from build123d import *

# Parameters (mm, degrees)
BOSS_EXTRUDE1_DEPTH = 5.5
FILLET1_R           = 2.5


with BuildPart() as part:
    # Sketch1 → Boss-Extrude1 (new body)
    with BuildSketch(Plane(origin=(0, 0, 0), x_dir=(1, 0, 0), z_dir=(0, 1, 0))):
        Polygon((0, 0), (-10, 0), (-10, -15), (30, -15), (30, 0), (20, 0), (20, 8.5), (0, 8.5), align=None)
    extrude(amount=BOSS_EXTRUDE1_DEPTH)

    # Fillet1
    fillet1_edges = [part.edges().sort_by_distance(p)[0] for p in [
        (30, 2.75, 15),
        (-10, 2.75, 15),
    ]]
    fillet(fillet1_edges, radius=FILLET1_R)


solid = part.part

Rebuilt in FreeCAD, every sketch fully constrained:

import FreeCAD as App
import Part
import Sketcher

V = App.Vector


def edges_at(feature, points):
    """Names of the edges that pass closest to the given points."""
    edges = feature.Shape.Edges
    near = lambda p: min(range(len(edges)), key=lambda i: edges[i].distToShape(Part.Vertex(*p))[0])
    return sorted({f"Edge{near(p) + 1}" for p in points})

doc = App.newDocument("Part")
body = doc.addObject("PartDesign::Body", "Body")

sketch1 = doc.addObject("Sketcher::SketchObject", "Sketch")
body.addObject(sketch1)
sketch1.AttachmentSupport = (doc.XZ_Plane, [""])
sketch1.MapMode = "FlatFace"
sketch1.addGeometry(Part.LineSegment(V(0, 0, 0), V(-10, 0, 0)), False)
sketch1.addGeometry(Part.LineSegment(V(-10, 0, 0), V(-10, 15, 0)), False)
sketch1.addGeometry(Part.LineSegment(V(-10, 15, 0), V(30, 15, 0)), False)
sketch1.addGeometry(Part.LineSegment(V(30, 15, 0), V(30, 0, 0)), False)
sketch1.addGeometry(Part.LineSegment(V(30, 0, 0), V(20, 0, 0)), False)
sketch1.addGeometry(Part.LineSegment(V(20, 0, 0), V(20, -8, 0)), False)
sketch1.addGeometry(Part.LineSegment(V(20, -8, 0), V(0, -8, 0)), False)
sketch1.addGeometry(Part.LineSegment(V(0, -8, 0), V(0, 0, 0)), False)
sketch1.addConstraint(Sketcher.Constraint("Coincident", 0, 2, 1, 1))
sketch1.addConstraint(Sketcher.Constraint("Coincident", 1, 2, 2, 1))
sketch1.addConstraint(Sketcher.Constraint("Coincident", 2, 2, 3, 1))
sketch1.addConstraint(Sketcher.Constraint("Coincident", 3, 2, 4, 1))
sketch1.addConstraint(Sketcher.Constraint("Coincident", 4, 2, 5, 1))
sketch1.addConstraint(Sketcher.Constraint("Coincident", 5, 2, 6, 1))
sketch1.addConstraint(Sketcher.Constraint("Coincident", 6, 2, 7, 1))
sketch1.addConstraint(Sketcher.Constraint("Coincident", 7, 2, 0, 1))
sketch1.addConstraint(Sketcher.Constraint("Horizontal", 0))
sketch1.addConstraint(Sketcher.Constraint("Vertical", 1))
sketch1.addConstraint(Sketcher.Constraint("Horizontal", 2))
sketch1.addConstraint(Sketcher.Constraint("Vertical", 3))
sketch1.addConstraint(Sketcher.Constraint("Horizontal", 4))
sketch1.addConstraint(Sketcher.Constraint("Vertical", 5))
sketch1.addConstraint(Sketcher.Constraint("Horizontal", 6))
sketch1.addConstraint(Sketcher.Constraint("Vertical", 7))
sketch1.addConstraint(Sketcher.Constraint("Coincident", 7, 2, -1, 1))
sketch1.addConstraint(Sketcher.Constraint("PointOnObject", 3, 2, -1))
sketch1.addConstraint(Sketcher.Constraint("Equal", 0, 4))
sketch1.addConstraint(Sketcher.Constraint("DistanceX", 0, 2, 0, 1, 10.0))
sketch1.addConstraint(Sketcher.Constraint("DistanceX", 2, 1, 2, 2, 40.0))
sketch1.addConstraint(Sketcher.Constraint("DistanceY", 1, 1, 1, 2, 15.0))
sketch1.addConstraint(Sketcher.Constraint("DistanceY", 5, 2, 5, 1, 8.5))
pad1 = doc.addObject("PartDesign::Pad", "Pad")
body.addObject(pad1)
pad1.Profile = sketch1
pad1.Length = 5.5
pad1.Reversed = True
doc.recompute()

fillet = doc.addObject("PartDesign::Fillet", "Fillet")
body.addObject(fillet)
fillet.Base = (pad1, edges_at(pad1, [(30, 2.75, 15), (-10, 2.75, 15)]))
fillet.Radius = 2.5

doc.recompute()
